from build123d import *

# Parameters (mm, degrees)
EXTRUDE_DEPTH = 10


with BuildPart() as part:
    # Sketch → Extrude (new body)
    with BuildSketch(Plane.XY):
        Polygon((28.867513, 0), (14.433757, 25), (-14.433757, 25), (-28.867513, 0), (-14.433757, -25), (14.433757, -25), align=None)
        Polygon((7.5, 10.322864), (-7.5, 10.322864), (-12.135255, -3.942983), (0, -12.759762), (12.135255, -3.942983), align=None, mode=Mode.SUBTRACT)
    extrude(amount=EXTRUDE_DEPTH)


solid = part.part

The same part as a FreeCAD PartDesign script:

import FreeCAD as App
import Part
import Sketcher
from FreeCAD import Vector
Q = App.Units.Quantity

doc = App.newDocument("Part")
body = doc.addObject("PartDesign::Body", "Body")

sketch1 = doc.addObject("Sketcher::SketchObject", "Sketch")
body.addObject(sketch1)
sketch1.AttachmentSupport = (doc.XY_Plane, [""])
sketch1.MapMode = "FlatFace"
sketch1.addGeometry(Part.LineSegment(Vector(28.867513, 0, 0), Vector(14.433757, 25, 0)), False)
sketch1.addGeometry(Part.LineSegment(Vector(14.433757, 25, 0), Vector(-14.433757, 25, 0)), False)
sketch1.addGeometry(Part.LineSegment(Vector(-14.433757, 25, 0), Vector(-28.867513, 0, 0)), False)
sketch1.addGeometry(Part.LineSegment(Vector(-28.867513, 0, 0), Vector(-14.433757, -25, 0)), False)
sketch1.addGeometry(Part.LineSegment(Vector(-14.433757, -25, 0), Vector(14.433757, -25, 0)), False)
sketch1.addGeometry(Part.LineSegment(Vector(14.433757, -25, 0), Vector(28.867513, 0, 0)), False)
sketch1.addGeometry(Part.LineSegment(Vector(-7.5, 10.322864, 0), Vector(7.5, 10.322864, 0)), False)
sketch1.addGeometry(Part.LineSegment(Vector(7.5, 10.322864, 0), Vector(12.135255, -3.942983, 0)), False)
sketch1.addGeometry(Part.LineSegment(Vector(12.135255, -3.942983, 0), Vector(0, -12.759762, 0)), False)
sketch1.addGeometry(Part.LineSegment(Vector(0, -12.759762, 0), Vector(-12.135255, -3.942983, 0)), False)
sketch1.addGeometry(Part.LineSegment(Vector(-12.135255, -3.942983, 0), Vector(-7.5, 10.322864, 0)), False)
sketch1.addConstraint(Sketcher.Constraint("Coincident", 0, 2, 1, 1))
sketch1.addConstraint(Sketcher.Constraint("Coincident", 1, 2, 2, 1))
sketch1.addConstraint(Sketcher.Constraint("Coincident", 2, 2, 3, 1))
sketch1.addConstraint(Sketcher.Constraint("Coincident", 3, 2, 4, 1))
sketch1.addConstraint(Sketcher.Constraint("Coincident", 4, 2, 5, 1))
sketch1.addConstraint(Sketcher.Constraint("Coincident", 5, 2, 0, 1))
sketch1.addConstraint(Sketcher.Constraint("Coincident", 6, 2, 7, 1))
sketch1.addConstraint(Sketcher.Constraint("Coincident", 7, 2, 8, 1))
sketch1.addConstraint(Sketcher.Constraint("Coincident", 8, 2, 9, 1))
sketch1.addConstraint(Sketcher.Constraint("Coincident", 9, 2, 10, 1))
sketch1.addConstraint(Sketcher.Constraint("Coincident", 10, 2, 6, 1))
sketch1.addConstraint(Sketcher.Constraint("Horizontal", 1))
sketch1.addConstraint(Sketcher.Constraint("Horizontal", 4))
sketch1.addConstraint(Sketcher.Constraint("Horizontal", 6))
sketch1.addConstraint(Sketcher.Constraint("Symmetric", 0, 2, 3, 2, -1, 1))
sketch1.addConstraint(Sketcher.Constraint("Symmetric", 2, 2, 5, 2, -1, 1))
sketch1.addConstraint(Sketcher.Constraint("Symmetric", 7, 2, 9, 2, -2))
sketch1.addConstraint(Sketcher.Constraint("PointOnObject", 2, 2, -1))
sketch1.addConstraint(Sketcher.Constraint("PointOnObject", 8, 2, -2))
sketch1.addConstraint(Sketcher.Constraint("Parallel", 2, 5))
sketch1.addConstraint(Sketcher.Constraint("Vertical", 1, 2, 3, 2))
sketch1.addConstraint(Sketcher.Constraint("Equal", 7, 8))
sketch1.addConstraint(Sketcher.Constraint("Equal", 9, 10))
sketch1.addConstraint(Sketcher.Constraint("DistanceX", 6, 1, 6, 2, 15.0))
sketch1.addConstraint(Sketcher.Constraint("Angle", 0, Q("119.999999 deg")))
sketch1.addConstraint(Sketcher.Constraint("Angle", 7, Q("-71.999999 deg")))
sketch1.addConstraint(Sketcher.Constraint("Angle", 8, Q("-144 deg")))
sketch1.addConstraint(Sketcher.Constraint("DistanceY", -1, 1, 0, 2, 25.0))
sketch1.addConstraint(Sketcher.Constraint("DistanceX", 7, 2, 4, 2, 2.298502))
sketch1.addConstraint(Sketcher.Constraint("DistanceY", -1, 1, 6, 2, 10.322864))
pad1 = doc.addObject("PartDesign::Pad", "Pad")
body.addObject(pad1)
pad1.Profile = sketch1
pad1.Length = 10

doc.recompute()
